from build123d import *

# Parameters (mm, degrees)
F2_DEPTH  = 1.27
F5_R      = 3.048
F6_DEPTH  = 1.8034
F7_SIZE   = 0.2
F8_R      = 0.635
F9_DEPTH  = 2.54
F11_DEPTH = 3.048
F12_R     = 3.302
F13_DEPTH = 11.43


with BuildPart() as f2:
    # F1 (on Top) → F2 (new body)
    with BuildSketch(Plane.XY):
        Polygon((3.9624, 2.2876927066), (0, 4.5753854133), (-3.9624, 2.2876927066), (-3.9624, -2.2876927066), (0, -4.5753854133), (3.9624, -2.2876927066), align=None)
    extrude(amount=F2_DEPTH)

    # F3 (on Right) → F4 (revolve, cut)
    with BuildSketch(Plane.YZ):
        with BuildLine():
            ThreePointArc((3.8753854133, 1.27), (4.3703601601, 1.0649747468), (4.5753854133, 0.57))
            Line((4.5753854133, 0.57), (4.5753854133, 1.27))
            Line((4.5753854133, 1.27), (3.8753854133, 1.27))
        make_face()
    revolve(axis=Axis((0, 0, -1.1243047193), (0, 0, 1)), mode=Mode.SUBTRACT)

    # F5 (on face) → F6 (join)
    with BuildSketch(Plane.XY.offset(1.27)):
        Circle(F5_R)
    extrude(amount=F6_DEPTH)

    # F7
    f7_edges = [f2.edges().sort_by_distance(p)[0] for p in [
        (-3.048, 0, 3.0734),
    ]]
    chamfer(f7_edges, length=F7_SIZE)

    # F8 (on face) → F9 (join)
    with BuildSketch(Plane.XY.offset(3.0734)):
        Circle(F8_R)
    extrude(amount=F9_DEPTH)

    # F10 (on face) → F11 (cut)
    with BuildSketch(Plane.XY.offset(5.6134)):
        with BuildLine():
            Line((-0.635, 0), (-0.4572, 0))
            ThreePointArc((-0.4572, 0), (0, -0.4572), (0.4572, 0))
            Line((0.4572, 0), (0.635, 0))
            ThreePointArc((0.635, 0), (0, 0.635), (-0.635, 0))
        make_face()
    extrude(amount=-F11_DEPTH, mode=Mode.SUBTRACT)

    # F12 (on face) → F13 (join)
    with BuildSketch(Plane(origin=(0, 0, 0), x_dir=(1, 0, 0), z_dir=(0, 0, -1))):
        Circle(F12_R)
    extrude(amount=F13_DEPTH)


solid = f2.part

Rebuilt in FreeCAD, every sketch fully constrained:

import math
import FreeCAD as App
import Part
import Sketcher
Q = App.Units.Quantity


def edges_at(feature, points):
    """Names of the edges that pass closest to the given points."""
    edges = feature.Shape.Edges
    near = lambda p: min(range(len(edges)), key=lambda i: edges[i].distToShape(Part.Vertex(*p))[0])
    return sorted({f"Edge{near(p) + 1}" for p in points})

doc = App.newDocument("Part")
body = doc.addObject("PartDesign::Body", "Body")

sketch1 = body.newObject("Sketcher::SketchObject", "Sketch")
sketch1.AttachmentSupport = (doc.getObject("XY_Plane"), [""])
sketch1.MapMode = "FlatFace"
sketch1.addGeometry(Part.LineSegment(App.Vector(4, 2.3, 0), App.Vector(0, 4.6, 0)), False)
sketch1.addGeometry(Part.LineSegment(App.Vector(0, 4.6, 0), App.Vector(-4, 2.3, 0)), False)
sketch1.addGeometry(Part.LineSegment(App.Vector(-4, 2.3, 0), App.Vector(-4, -2.3, 0)), False)
sketch1.addGeometry(Part.LineSegment(App.Vector(-4, -2.3, 0), App.Vector(0, -4.6, 0)), False)
sketch1.addGeometry(Part.LineSegment(App.Vector(0, -4.6, 0), App.Vector(4, -2.3, 0)), False)
sketch1.addGeometry(Part.LineSegment(App.Vector(4, -2.3, 0), App.Vector(4, 2.3, 0)), False)
sketch1.addConstraint(Sketcher.Constraint("Coincident", 0, 2, 1, 1))
sketch1.addConstraint(Sketcher.Constraint("Coincident", 1, 2, 2, 1))
sketch1.addConstraint(Sketcher.Constraint("Coincident", 2, 2, 3, 1))
sketch1.addConstraint(Sketcher.Constraint("Coincident", 3, 2, 4, 1))
sketch1.addConstraint(Sketcher.Constraint("Coincident", 4, 2, 5, 1))
sketch1.addConstraint(Sketcher.Constraint("Coincident", 5, 2, 0, 1))
sketch1.addConstraint(Sketcher.Constraint("Vertical", 2))
sketch1.addConstraint(Sketcher.Constraint("Vertical", 5))
sketch1.addConstraint(Sketcher.Constraint("Symmetric", 0, 2, 3, 2, -1, 1))
sketch1.addConstraint(Sketcher.Constraint("Symmetric", 1, 2, 4, 2, -1, 1))
sketch1.addConstraint(Sketcher.Constraint("PointOnObject", 0, 2, -2))
sketch1.addConstraint(Sketcher.Constraint("Parallel", 0, 3))
sketch1.addConstraint(Sketcher.Constraint("Horizontal", 2, 2, 4, 2))
sketch1.addConstraint(Sketcher.Constraint("Angle", 0, Q("150 deg")))
sketch1.addConstraint(Sketcher.Constraint("DistanceX", 1, 2, -1, 1, Q("0.156 in")))
sketch1.addConstraint(Sketcher.Constraint("DistanceY", 2, 2, 0, 2, Q("0.2701999 in")))
pad1 = body.newObject("PartDesign::Pad", "Pad")
pad1.Profile = sketch1
pad1.Length = Q("0.05 in")

sketch2 = body.newObject("Sketcher::SketchObject", "Sketch001")
sketch2.AttachmentSupport = (doc.getObject("YZ_Plane"), [""])
sketch2.MapMode = "FlatFace"
sketch2.addGeometry(Part.ArcOfCircle(Part.Circle(App.Vector(3.9, 0.6, 0), App.Vector(0, 0, 1), 0.7), math.radians(0), math.radians(90)), False)
sketch2.addGeometry(Part.LineSegment(App.Vector(4.6, 0.6, 0), App.Vector(4.6, 1.3, 0)), False)
sketch2.addGeometry(Part.LineSegment(App.Vector(4.6, 1.3, 0), App.Vector(3.9, 1.3, 0)), False)
sketch2.addConstraint(Sketcher.Constraint("Tangent", 0, 1, 1, 1))
sketch2.addConstraint(Sketcher.Constraint("Coincident", 1, 2, 2, 1))
sketch2.addConstraint(Sketcher.Constraint("Tangent", 2, 2, 0, 2))
sketch2.addConstraint(Sketcher.Constraint("Vertical", 1))
sketch2.addConstraint(Sketcher.Constraint("Horizontal", 2))
sketch2.addConstraint(Sketcher.Constraint("DistanceY", -1, 1, 1, 2, Q("0.05 in")))
sketch2.addConstraint(Sketcher.Constraint("Radius", 0, 0.7))
sketch2.addConstraint(Sketcher.Constraint("DistanceX", -1, 1, 0, 3, 3.875385))
groove = body.newObject("PartDesign::Groove", "Groove")
groove.Profile = sketch2
groove.ReferenceAxis = (sketch2, ["V_Axis"])
groove.Angle = 360

sketch3 = body.newObject("Sketcher::SketchObject", "Sketch002")
sketch3.AttachmentSupport = (doc.getObject("XY_Plane"), [""])
sketch3.MapMode = "FlatFace"
sketch3.AttachmentOffset = App.Placement(App.Vector(0, 0, 0.05 * 25.4), App.Rotation())
sketch3.addGeometry(Part.Circle(App.Vector(0, 0, 0), App.Vector(0, 0, 1), 3), False)
sketch3.addConstraint(Sketcher.Constraint("Coincident", 0, 3, -1, 1))
sketch3.addConstraint(Sketcher.Constraint("Diameter", 0, Q("0.24 in")))
pad2 = body.newObject("PartDesign::Pad", "Pad001")
pad2.Profile = sketch3
pad2.Length = Q("0.071 in")
doc.recompute()

chamfer = body.newObject("PartDesign::Chamfer", "Chamfer")
chamfer.Base = (pad2, edges_at(pad2, [(-3.048, 0, 3.073)]))
chamfer.Size = 0.2

sketch4 = body.newObject("Sketcher::SketchObject", "Sketch003")
sketch4.AttachmentSupport = (doc.getObject("XY_Plane"), [""])
sketch4.MapMode = "FlatFace"
sketch4.AttachmentOffset = App.Placement(App.Vector(0, 0, 0.121 * 25.4), App.Rotation())
sketch4.addGeometry(Part.Circle(App.Vector(0, 0, 0), App.Vector(0, 0, 1), 0.6), False)
sketch4.addConstraint(Sketcher.Constraint("Coincident", 0, 3, -1, 1))
sketch4.addConstraint(Sketcher.Constraint("Diameter", 0, Q("0.05 in")))
pad3 = body.newObject("PartDesign::Pad", "Pad002")
pad3.Profile = sketch4
pad3.Length = Q("0.1 in")

sketch5 = body.newObject("Sketcher::SketchObject", "Sketch004")
sketch5.AttachmentSupport = (doc.getObject("XY_Plane"), [""])
sketch5.MapMode = "FlatFace"
sketch5.AttachmentOffset = App.Placement(App.Vector(0, 0, 0.221 * 25.4), App.Rotation())
sketch5.addGeometry(Part.LineSegment(App.Vector(-0.64, 0, 0), App.Vector(-0.46, 0, 0)), False)
sketch5.addGeometry(Part.ArcOfCircle(Part.Circle(App.Vector(0, 0, 0), App.Vector(0, 0, 1), 0.46), math.radians(180), math.radians(360)), False)
sketch5.addGeometry(Part.LineSegment(App.Vector(0.46, 0, 0), App.Vector(0.64, 0, 0)), False)
sketch5.addGeometry(Part.ArcOfCircle(Part.Circle(App.Vector(0, 0, 0), App.Vector(0, 0, 1), 0.64), math.radians(0), math.radians(180)), False)
sketch5.addConstraint(Sketcher.Constraint("Coincident", 0, 2, 1, 1))
sketch5.addConstraint(Sketcher.Constraint("Coincident", 1, 2, 2, 1))
sketch5.addConstraint(Sketcher.Constraint("Coincident", 2, 2, 3, 1))
sketch5.addConstraint(Sketcher.Constraint("Coincident", 3, 2, 0, 1))
sketch5.addConstraint(Sketcher.Constraint("Horizontal", 0))
sketch5.addConstraint(Sketcher.Constraint("Horizontal", 2))
sketch5.addConstraint(Sketcher.Constraint("Coincident", 1, 3, -1, 1))
sketch5.addConstraint(Sketcher.Constraint("Coincident", 3, 3, -1, 1))
sketch5.addConstraint(Sketcher.Constraint("PointOnObject", 0, 2, -1))
sketch5.addConstraint(Sketcher.Constraint("PointOnObject", 1, 2, -1))
sketch5.addConstraint(Sketcher.Constraint("Radius", 1, Q("0.018 in")))
sketch5.addConstraint(Sketcher.Constraint("Radius", 3, Q("0.025 in")))
pocket1 = body.newObject("PartDesign::Pocket", "Pocket")
pocket1.Profile = sketch5
pocket1.Length = Q("0.12 in")

sketch6 = body.newObject("Sketcher::SketchObject", "Sketch005")
sketch6.AttachmentSupport = (doc.getObject("XY_Plane"), [""])
sketch6.MapMode = "FlatFace"
sketch6.addGeometry(Part.Circle(App.Vector(0, 0, 0), App.Vector(0, 0, 1), 3.3), False)
sketch6.addConstraint(Sketcher.Constraint("Coincident", 0, 3, -1, 1))
sketch6.addConstraint(Sketcher.Constraint("Diameter", 0, Q("0.26 in")))
pad4 = body.newObject("PartDesign::Pad", "Pad003")
pad4.Profile = sketch6
pad4.Length = Q("0.45 in")
pad4.Reversed = True

doc.recompute()
